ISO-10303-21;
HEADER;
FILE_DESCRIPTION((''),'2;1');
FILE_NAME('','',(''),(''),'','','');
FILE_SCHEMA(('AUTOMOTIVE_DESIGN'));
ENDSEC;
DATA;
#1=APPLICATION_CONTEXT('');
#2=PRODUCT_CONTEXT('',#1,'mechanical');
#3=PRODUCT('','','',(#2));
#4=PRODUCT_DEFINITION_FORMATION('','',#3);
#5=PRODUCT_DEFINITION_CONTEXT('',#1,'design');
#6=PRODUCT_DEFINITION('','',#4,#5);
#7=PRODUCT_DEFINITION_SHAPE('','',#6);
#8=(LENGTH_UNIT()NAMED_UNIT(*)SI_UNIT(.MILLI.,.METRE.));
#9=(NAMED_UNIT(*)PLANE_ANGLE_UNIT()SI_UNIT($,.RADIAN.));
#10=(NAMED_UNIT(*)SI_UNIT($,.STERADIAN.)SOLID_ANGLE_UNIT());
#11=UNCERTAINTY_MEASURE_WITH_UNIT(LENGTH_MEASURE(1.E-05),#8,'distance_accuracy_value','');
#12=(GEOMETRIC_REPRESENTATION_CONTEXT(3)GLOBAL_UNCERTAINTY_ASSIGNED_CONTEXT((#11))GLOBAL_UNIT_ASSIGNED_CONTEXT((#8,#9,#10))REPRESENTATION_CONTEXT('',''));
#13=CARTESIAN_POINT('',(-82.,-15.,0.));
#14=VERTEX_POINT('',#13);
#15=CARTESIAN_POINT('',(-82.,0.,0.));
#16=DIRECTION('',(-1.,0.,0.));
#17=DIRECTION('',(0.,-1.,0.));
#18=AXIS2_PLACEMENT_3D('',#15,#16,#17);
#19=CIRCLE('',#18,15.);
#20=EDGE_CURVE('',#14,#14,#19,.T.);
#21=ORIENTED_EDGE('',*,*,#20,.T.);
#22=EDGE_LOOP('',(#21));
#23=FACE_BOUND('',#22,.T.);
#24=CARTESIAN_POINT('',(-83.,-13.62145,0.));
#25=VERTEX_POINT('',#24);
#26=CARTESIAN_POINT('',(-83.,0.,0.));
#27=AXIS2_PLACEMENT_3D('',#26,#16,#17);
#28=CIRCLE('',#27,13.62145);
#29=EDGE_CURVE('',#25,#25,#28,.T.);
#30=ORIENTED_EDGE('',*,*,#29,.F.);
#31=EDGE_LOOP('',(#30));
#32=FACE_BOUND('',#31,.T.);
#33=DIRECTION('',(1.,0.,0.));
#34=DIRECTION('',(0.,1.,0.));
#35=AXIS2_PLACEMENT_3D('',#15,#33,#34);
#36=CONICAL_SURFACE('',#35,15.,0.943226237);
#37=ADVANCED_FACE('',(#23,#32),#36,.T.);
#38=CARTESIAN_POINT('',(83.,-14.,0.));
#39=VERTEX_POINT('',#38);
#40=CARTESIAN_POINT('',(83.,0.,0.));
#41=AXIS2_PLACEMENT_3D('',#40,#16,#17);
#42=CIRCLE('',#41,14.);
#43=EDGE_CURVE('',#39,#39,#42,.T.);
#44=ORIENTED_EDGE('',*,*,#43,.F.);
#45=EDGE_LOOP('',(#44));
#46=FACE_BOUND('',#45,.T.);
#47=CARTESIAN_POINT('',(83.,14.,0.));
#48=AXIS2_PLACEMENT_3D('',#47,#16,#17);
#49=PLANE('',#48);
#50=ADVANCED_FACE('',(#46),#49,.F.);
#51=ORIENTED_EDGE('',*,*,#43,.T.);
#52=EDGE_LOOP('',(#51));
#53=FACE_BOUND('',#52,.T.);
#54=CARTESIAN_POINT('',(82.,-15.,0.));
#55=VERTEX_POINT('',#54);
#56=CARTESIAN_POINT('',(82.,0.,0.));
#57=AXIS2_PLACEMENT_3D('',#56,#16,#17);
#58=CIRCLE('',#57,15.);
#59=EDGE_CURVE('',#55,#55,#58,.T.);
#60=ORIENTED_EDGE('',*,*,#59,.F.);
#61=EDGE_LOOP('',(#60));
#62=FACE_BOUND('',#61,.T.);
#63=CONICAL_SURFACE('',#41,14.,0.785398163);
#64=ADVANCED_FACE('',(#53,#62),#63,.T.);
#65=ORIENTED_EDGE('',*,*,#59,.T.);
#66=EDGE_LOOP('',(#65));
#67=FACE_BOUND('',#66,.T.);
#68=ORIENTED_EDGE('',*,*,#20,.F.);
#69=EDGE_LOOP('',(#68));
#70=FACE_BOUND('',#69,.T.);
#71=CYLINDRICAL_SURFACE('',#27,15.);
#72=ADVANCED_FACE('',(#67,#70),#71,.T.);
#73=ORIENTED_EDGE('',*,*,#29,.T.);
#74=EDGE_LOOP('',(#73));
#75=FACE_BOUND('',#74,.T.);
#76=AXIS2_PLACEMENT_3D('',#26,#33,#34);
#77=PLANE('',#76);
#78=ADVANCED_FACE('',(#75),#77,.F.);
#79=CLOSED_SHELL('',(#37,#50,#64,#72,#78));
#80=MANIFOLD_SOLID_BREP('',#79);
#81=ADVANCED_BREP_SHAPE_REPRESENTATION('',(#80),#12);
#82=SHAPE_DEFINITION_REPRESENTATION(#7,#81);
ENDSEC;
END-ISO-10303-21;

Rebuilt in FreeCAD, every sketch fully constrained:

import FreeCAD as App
import Part
import Sketcher
Q = App.Units.Quantity

doc = App.newDocument("Part")
params = doc.addObject("Spreadsheet::Sheet", "Params")
for row, (alias, value) in enumerate([
    ("sketch1_width", "166 mm"),
    ("sketch1_width2", "164 mm"),
    ("sketch1_height", "14 mm"),
    ("revolution_angle", "360 deg"),
], start=1):
    params.set(f"A{row}", alias)
    params.set(f"B{row}", "=" + value)
    params.setAlias(f"B{row}", alias)

body = doc.addObject("PartDesign::Body", "Body")

sketch1 = body.newObject("Sketcher::SketchObject", "Sketch")
sketch1.AttachmentSupport = (doc.getObject("XY_Plane"), [""])
sketch1.MapMode = "FlatFace"
sketch1.addGeometry([
    Part.LineSegment(App.Vector(-83, 13.6, 0), App.Vector(-83, 0, 0)),
    Part.LineSegment(App.Vector(-83, 0, 0), App.Vector(83, 0, 0)),
    Part.LineSegment(App.Vector(83, 0, 0), App.Vector(83, 14, 0)),
    Part.LineSegment(App.Vector(83, 14, 0), App.Vector(82, 15, 0)),
    Part.LineSegment(App.Vector(82, 15, 0), App.Vector(-82, 15, 0)),
    Part.LineSegment(App.Vector(-82, 15, 0), App.Vector(-83, 13.6, 0)),
], False)
sketch1.addConstraint([
    Sketcher.Constraint("Coincident", 0, 2, 1, 1),
    Sketcher.Constraint("Coincident", 1, 2, 2, 1),
    Sketcher.Constraint("Coincident", 2, 2, 3, 1),
    Sketcher.Constraint("Coincident", 3, 2, 4, 1),
    Sketcher.Constraint("Coincident", 4, 2, 5, 1),
    Sketcher.Constraint("Coincident", 5, 2, 0, 1),
    Sketcher.Constraint("Vertical", 0),
    Sketcher.Constraint("Horizontal", 1),
    Sketcher.Constraint("Vertical", 2),
    Sketcher.Constraint("Horizontal", 4),
    Sketcher.Constraint("Symmetric", 0, 2, 1, 2, -1, 1),
    Sketcher.Constraint("DistanceX", 1, 1, 1, 2, 166.0),
    Sketcher.Constraint("DistanceX", 4, 2, 4, 1, 164.0),
    Sketcher.Constraint("DistanceY", 2, 1, 2, 2, 14.0),
    Sketcher.Constraint("Angle", 3, Q("135 deg")),
    Sketcher.Constraint("DistanceX", -1, 1, 3, 2, 82.0),
    Sketcher.Constraint("DistanceY", 0, 2, 0, 1, 13.62145),
])
sketch1.setExpression("Constraints[11]", "Params.sketch1_width")
sketch1.setExpression("Constraints[12]", "Params.sketch1_width2")
sketch1.setExpression("Constraints[13]", "Params.sketch1_height")
revolution = body.newObject("PartDesign::Revolution", "Revolution")
revolution.Profile = sketch1
revolution.ReferenceAxis = (sketch1, ["H_Axis"])
revolution.setExpression("Angle", "Params.revolution_angle")

doc.recompute()
